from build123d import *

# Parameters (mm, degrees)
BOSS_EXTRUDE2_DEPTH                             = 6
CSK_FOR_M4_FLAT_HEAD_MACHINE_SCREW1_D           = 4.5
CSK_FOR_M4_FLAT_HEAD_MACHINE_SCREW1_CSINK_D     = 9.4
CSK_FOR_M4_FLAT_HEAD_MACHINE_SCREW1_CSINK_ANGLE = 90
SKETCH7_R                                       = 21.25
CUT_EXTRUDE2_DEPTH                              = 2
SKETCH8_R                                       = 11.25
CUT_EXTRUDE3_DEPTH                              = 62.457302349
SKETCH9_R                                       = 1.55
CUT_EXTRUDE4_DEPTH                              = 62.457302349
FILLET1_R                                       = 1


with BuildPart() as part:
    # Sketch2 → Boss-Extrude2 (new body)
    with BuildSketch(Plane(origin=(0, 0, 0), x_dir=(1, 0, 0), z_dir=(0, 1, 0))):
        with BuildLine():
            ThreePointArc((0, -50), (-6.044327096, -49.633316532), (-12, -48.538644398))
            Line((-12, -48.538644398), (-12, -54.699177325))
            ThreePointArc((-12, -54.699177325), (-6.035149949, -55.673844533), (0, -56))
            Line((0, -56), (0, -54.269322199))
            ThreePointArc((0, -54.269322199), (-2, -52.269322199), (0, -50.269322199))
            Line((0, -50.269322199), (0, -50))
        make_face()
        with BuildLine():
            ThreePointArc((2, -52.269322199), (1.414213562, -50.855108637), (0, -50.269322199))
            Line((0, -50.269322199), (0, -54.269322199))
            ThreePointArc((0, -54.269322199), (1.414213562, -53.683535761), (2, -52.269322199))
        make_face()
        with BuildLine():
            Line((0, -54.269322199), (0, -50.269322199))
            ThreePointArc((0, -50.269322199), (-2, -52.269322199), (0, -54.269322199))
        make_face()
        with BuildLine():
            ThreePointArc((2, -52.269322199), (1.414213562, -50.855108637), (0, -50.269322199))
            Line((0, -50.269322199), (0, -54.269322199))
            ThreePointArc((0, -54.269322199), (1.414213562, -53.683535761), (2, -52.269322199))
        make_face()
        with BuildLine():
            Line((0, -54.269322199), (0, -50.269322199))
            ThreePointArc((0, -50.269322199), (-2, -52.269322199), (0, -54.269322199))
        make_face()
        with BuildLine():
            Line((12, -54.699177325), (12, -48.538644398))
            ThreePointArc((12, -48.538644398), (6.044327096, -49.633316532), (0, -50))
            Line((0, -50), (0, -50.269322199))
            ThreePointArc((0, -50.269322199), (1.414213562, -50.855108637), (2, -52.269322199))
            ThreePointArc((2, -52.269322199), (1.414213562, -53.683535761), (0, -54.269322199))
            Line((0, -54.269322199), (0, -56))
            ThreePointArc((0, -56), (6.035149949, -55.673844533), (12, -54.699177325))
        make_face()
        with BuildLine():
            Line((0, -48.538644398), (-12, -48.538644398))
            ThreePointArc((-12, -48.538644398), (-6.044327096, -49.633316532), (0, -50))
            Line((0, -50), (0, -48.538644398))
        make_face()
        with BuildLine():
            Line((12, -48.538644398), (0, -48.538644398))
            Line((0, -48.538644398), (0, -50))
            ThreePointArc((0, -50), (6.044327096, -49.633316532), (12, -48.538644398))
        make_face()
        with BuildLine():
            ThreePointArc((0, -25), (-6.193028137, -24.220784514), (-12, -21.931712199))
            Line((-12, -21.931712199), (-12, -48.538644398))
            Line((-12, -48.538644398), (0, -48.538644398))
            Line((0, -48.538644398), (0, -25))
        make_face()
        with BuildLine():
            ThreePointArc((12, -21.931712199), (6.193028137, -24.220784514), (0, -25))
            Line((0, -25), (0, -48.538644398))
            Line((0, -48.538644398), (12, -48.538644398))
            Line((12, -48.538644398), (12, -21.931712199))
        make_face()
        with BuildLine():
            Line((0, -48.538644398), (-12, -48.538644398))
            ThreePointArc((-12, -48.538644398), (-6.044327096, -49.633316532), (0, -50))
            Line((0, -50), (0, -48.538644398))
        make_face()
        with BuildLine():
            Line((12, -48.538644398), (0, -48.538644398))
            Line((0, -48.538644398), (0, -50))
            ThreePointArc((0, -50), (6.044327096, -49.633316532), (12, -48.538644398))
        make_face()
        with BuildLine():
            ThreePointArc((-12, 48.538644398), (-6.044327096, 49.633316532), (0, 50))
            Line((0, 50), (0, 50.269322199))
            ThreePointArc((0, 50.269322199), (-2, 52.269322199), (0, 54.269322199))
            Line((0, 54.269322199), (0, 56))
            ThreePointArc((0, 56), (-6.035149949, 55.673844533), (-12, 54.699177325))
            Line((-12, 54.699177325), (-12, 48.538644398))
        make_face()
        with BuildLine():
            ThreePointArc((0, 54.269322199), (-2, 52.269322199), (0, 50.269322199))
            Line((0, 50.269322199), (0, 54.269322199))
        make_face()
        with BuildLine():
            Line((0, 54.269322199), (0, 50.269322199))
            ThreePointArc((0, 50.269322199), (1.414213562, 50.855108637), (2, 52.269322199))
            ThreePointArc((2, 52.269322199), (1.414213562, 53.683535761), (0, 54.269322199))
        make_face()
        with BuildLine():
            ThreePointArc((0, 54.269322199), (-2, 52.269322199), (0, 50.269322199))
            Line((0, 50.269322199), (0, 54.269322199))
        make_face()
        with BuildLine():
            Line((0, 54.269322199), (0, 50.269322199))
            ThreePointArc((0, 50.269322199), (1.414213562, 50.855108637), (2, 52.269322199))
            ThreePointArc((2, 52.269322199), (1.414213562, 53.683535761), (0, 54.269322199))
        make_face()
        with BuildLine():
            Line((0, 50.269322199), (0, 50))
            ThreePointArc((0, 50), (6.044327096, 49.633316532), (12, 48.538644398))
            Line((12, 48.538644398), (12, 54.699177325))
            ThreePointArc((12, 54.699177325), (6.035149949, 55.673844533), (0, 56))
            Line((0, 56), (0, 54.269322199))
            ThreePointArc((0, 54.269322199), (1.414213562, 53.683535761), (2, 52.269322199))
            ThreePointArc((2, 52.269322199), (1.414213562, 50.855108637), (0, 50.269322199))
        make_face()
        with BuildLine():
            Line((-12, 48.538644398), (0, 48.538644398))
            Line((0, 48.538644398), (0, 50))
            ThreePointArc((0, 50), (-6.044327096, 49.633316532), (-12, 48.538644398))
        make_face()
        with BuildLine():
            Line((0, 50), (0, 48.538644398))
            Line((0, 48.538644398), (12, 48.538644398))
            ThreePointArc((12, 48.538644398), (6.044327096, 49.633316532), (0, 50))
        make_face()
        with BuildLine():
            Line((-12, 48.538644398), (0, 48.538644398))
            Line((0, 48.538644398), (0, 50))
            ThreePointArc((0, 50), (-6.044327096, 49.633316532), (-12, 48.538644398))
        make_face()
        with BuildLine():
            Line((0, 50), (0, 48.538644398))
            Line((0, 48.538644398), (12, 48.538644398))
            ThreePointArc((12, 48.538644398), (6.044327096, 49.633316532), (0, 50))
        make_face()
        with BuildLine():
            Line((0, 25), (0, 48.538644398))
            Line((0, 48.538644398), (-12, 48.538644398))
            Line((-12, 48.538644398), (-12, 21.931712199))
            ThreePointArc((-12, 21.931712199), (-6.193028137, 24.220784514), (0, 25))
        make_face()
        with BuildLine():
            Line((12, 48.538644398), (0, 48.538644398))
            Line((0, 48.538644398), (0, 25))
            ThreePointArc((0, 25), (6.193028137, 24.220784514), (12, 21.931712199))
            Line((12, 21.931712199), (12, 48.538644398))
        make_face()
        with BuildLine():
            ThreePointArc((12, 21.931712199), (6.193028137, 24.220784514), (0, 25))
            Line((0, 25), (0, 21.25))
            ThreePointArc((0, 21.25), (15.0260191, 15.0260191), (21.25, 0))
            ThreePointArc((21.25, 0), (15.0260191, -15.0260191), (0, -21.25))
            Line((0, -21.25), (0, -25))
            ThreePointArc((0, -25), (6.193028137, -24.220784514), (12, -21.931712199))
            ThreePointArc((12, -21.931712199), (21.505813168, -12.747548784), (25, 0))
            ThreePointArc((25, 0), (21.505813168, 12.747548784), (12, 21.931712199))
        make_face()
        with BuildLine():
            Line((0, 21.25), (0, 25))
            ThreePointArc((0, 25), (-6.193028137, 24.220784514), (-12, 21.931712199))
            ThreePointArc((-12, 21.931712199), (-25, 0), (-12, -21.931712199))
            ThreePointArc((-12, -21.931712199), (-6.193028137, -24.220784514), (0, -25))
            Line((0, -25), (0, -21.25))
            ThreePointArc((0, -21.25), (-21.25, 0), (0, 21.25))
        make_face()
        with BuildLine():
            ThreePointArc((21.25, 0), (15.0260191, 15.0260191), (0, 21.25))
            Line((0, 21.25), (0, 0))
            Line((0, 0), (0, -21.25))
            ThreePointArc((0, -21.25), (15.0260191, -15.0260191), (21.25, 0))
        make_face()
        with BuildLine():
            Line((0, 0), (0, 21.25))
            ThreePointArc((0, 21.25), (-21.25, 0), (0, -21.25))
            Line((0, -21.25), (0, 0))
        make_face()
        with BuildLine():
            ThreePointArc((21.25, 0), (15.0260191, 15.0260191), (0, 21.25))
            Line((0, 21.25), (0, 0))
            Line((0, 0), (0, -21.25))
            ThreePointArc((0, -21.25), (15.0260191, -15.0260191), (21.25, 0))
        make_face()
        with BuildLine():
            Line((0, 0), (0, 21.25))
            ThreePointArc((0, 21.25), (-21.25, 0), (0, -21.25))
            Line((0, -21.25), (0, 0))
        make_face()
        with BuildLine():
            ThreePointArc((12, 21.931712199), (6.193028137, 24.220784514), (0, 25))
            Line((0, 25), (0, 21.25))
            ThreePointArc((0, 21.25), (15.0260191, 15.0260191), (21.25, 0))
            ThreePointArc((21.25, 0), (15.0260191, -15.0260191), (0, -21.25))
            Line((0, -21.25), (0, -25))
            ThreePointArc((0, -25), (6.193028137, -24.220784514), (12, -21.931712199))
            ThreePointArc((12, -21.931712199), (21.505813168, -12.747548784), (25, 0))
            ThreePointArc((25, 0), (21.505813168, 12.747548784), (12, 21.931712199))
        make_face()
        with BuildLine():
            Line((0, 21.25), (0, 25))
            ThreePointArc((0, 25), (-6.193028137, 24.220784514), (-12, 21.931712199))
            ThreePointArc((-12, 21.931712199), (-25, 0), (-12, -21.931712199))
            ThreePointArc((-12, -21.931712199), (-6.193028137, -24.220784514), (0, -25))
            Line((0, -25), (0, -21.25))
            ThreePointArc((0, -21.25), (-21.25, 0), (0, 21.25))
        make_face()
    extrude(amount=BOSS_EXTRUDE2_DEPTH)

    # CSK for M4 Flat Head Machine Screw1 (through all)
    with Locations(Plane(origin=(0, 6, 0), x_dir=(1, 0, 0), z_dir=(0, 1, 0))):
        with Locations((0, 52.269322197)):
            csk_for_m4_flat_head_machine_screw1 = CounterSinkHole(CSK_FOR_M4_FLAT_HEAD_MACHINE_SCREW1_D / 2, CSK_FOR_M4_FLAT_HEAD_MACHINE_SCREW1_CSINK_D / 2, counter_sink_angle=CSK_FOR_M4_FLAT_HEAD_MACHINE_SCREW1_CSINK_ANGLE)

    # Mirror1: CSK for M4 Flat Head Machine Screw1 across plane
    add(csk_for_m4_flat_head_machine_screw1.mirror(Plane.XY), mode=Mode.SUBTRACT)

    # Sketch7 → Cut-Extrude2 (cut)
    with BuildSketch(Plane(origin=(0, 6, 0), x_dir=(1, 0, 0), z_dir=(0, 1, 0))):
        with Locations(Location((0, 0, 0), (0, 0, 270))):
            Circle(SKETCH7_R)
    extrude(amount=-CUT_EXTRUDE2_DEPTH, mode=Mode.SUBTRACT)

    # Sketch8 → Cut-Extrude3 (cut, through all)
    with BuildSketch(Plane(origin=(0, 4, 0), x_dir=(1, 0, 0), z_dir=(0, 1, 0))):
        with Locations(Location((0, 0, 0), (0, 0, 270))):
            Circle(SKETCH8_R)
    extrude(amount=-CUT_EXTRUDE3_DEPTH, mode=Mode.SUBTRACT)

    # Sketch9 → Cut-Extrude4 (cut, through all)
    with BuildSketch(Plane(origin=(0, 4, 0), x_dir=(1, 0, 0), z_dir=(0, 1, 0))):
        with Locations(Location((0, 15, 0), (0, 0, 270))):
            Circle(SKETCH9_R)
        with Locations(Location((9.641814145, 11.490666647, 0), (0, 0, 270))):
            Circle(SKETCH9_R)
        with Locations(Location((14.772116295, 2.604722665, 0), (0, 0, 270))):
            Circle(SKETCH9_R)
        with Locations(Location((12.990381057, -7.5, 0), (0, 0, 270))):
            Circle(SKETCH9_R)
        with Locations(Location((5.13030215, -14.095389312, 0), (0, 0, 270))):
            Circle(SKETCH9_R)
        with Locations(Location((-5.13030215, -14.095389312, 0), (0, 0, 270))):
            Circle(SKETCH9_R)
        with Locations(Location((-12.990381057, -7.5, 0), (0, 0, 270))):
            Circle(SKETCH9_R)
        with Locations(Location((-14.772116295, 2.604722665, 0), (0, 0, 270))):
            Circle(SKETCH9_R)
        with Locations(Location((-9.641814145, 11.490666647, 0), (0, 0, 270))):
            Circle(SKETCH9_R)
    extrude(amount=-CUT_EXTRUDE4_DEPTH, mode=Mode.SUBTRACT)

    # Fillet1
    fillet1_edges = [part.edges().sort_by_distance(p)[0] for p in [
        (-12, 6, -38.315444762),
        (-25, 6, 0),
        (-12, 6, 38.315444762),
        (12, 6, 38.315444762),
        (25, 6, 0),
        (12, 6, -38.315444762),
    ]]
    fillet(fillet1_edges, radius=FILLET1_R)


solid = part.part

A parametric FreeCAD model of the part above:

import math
import FreeCAD as App
import Part
import Sketcher

V = App.Vector
Q = App.Units.Quantity


def edges_at(feature, points):
    """Names of the edges that pass closest to the given points."""
    edges = feature.Shape.Edges
    near = lambda p: min(range(len(edges)), key=lambda i: edges[i].distToShape(Part.Vertex(*p))[0])
    return sorted({f"Edge{near(p) + 1}" for p in points})

doc = App.newDocument("Part")
params = doc.addObject("Spreadsheet::Sheet", "Params")
for row, (alias, value) in enumerate([
    ("sketch1_radius", "25 mm"),
    ("sketch1_radius2", "56 mm"),
    ("pad1_length", "6 mm"),
    ("sketch2_diameter", "4.5 mm"),
    ("hole_diameter", "4.5 mm"),
    ("hole_csink_diameter", "9.4 mm"),
    ("sketch3_diameter", "42.5 mm"),
    ("pocket1_length", "2 mm"),
    ("sketch4_diameter", "22.5 mm"),
    ("sketch5_diameter", "3.1 mm"),
    ("fillet_radius", "1 mm"),
], start=1):
    params.set(f"A{row}", alias)
    params.set(f"B{row}", "=" + value)
    params.setAlias(f"B{row}", alias)

body = doc.addObject("PartDesign::Body", "Body")

# Sketch on XZ plane
sketch1 = body.newObject("Sketcher::SketchObject", "Sketch")
sketch1.AttachmentSupport = (doc.getObject("XZ_Plane"), [""])
sketch1.MapMode = "FlatFace"
sketch1.addGeometry([
    Part.ArcOfCircle(Part.Circle(V(0, 0, 0), V(0, 0, 1), 25), math.radians(119), math.radians(241)),  # 0
    Part.LineSegment(V(-12, 22, 0), V(-12, 55, 0)),  # 1
    Part.ArcOfCircle(Part.Circle(V(0, 0, 0), V(0, 0, 1), 56), math.radians(90), math.radians(102.37)),  # 2
    Part.ArcOfCircle(Part.Circle(V(0, 0, 0), V(0, 0, 1), 56), math.radians(77.63), math.radians(90)),  # 3
    Part.LineSegment(V(12, 55, 0), V(12, 22, 0)),  # 4
    Part.ArcOfCircle(Part.Circle(V(0, 0, 0), V(0, 0, 1), 25), math.radians(0), math.radians(61)),  # 5
    Part.ArcOfCircle(Part.Circle(V(0, 0, 0), V(0, 0, 1), 25), math.radians(-61), math.radians(0)),  # 6
    Part.LineSegment(V(12, -22, 0), V(12, -55, 0)),  # 7
    Part.ArcOfCircle(Part.Circle(V(0, 0, 0), V(0, 0, 1), 56), math.radians(-90), math.radians(-77.63)),  # 8
    Part.ArcOfCircle(Part.Circle(V(0, 0, 0), V(0, 0, 1), 56), math.radians(-102.37), math.radians(-90)),  # 9
    Part.LineSegment(V(-12, -55, 0), V(-12, -22, 0)),  # 10
], False)
sketch1.addConstraint([
    Sketcher.Constraint("Coincident", 0, 1, 1, 1),
    Sketcher.Constraint("Coincident", 1, 2, 2, 2),
    Sketcher.Constraint("Tangent", 2, 1, 3, 2),
    Sketcher.Constraint("Coincident", 3, 1, 4, 1),
    Sketcher.Constraint("Coincident", 4, 2, 5, 2),
    Sketcher.Constraint("Tangent", 5, 1, 6, 2),
    Sketcher.Constraint("Coincident", 6, 1, 7, 1),
    Sketcher.Constraint("Coincident", 7, 2, 8, 2),
    Sketcher.Constraint("Tangent", 8, 1, 9, 2),
    Sketcher.Constraint("Coincident", 9, 1, 10, 1),
    Sketcher.Constraint("Coincident", 10, 2, 0, 2),
    Sketcher.Constraint("Vertical", 1),
    Sketcher.Constraint("Vertical", 4),
    Sketcher.Constraint("Vertical", 7),
    Sketcher.Constraint("Vertical", 10),
    Sketcher.Constraint("Coincident", 0, 3, -1, 1),
    Sketcher.Constraint("Coincident", 2, 3, -1, 1),
    Sketcher.Constraint("Coincident", 5, 3, -1, 1),
    Sketcher.Constraint("Coincident", 8, 3, -1, 1),
    Sketcher.Constraint("Equal", 2, 3),
    Sketcher.Constraint("Equal", 0, 5),
    Sketcher.Constraint("Equal", 5, 6),
    Sketcher.Constraint("Equal", 3, 8),
    Sketcher.Constraint("Equal", 8, 9),
    Sketcher.Constraint("PointOnObject", 2, 1, -2),
    Sketcher.Constraint("PointOnObject", 5, 1, -1),
    Sketcher.Constraint("PointOnObject", 8, 1, -2),
    Sketcher.Constraint("Horizontal", 1, 2, 3, 1),
    Sketcher.Constraint("Horizontal", 7, 2, 9, 1),
    Sketcher.Constraint("Vertical", 4, 2, 6, 1),
    Sketcher.Constraint("Radius", 0, Q("25 mm")),
    Sketcher.Constraint("Radius", 2, Q("56 mm")),
    Sketcher.Constraint("DistanceX", 0, 1, -1, 1, Q("12 mm")),
])
sketch1.setExpression("Constraints[30]", "Params.sketch1_radius")
sketch1.setExpression("Constraints[31]", "Params.sketch1_radius2")
pad1 = body.newObject("PartDesign::Pad", "Pad")
pad1.Profile = sketch1
pad1.setExpression("Length", "Params.pad1_length")
pad1.Reversed = True

# Sketch on XZ plane
sketch2 = body.newObject("Sketcher::SketchObject", "Sketch001")
sketch2.AttachmentSupport = (doc.getObject("XZ_Plane"), [""])
sketch2.MapMode = "FlatFace"
sketch2.AttachmentOffset = App.Placement(V(0, 0, -6), App.Rotation())
sketch2.addGeometry(Part.Circle(V(0, -52.3, 0), V(0, 0, 1), 2.2), False)
sketch2.addConstraint([
    Sketcher.Constraint("PointOnObject", 0, 3, -2),
    Sketcher.Constraint("Diameter", 0, Q("4.5 mm")),
    Sketcher.Constraint("DistanceY", 0, 3, -1, 1, Q("52.269322 mm")),
])
sketch2.setExpression("Constraints[1]", "Params.sketch2_diameter")
doc.recompute()
hole = body.newObject("PartDesign::Hole", "Hole")
hole.Profile = sketch2
hole.ThreadType = "None"
hole.setExpression("Diameter", "Params.hole_diameter")
hole.DepthType = "ThroughAll"
hole.HoleCutType = "Countersink"
hole.setExpression("HoleCutDiameter", "Params.hole_csink_diameter")
hole.HoleCutCountersinkAngle = 90
hole.Reversed = True
doc.recompute()

mirrored = body.newObject("PartDesign::Mirrored", "Mirrored")
mirrored.Originals = [hole]
mirrored.MirrorPlane = (doc.getObject("XY_Plane"), [""])
body.Tip = mirrored

# Sketch on XZ plane
sketch3 = body.newObject("Sketcher::SketchObject", "Sketch002")
sketch3.AttachmentSupport = (doc.getObject("XZ_Plane"), [""])
sketch3.MapMode = "FlatFace"
sketch3.AttachmentOffset = App.Placement(V(0, 0, -6), App.Rotation())
sketch3.addGeometry(Part.Circle(V(0, 0, 0), V(0, 0, 1), 21), False)
sketch3.addConstraint([
    Sketcher.Constraint("Coincident", 0, 3, -1, 1),
    Sketcher.Constraint("Diameter", 0, Q("42.5 mm")),
])
sketch3.setExpression("Constraints[1]", "Params.sketch3_diameter")
pocket1 = body.newObject("PartDesign::Pocket", "Pocket")
pocket1.Profile = sketch3
pocket1.setExpression("Length", "Params.pocket1_length")
pocket1.Reversed = True

# Sketch on XZ plane
sketch4 = body.newObject("Sketcher::SketchObject", "Sketch003")
sketch4.AttachmentSupport = (doc.getObject("XZ_Plane"), [""])
sketch4.MapMode = "FlatFace"
sketch4.AttachmentOffset = App.Placement(V(0, 0, -4), App.Rotation())
sketch4.addGeometry(Part.Circle(V(0, 0, 0), V(0, 0, 1), 11), False)
sketch4.addConstraint([
    Sketcher.Constraint("Coincident", 0, 3, -1, 1),
    Sketcher.Constraint("Diameter", 0, Q("22.5 mm")),
])
sketch4.setExpression("Constraints[1]", "Params.sketch4_diameter")
pocket2 = body.newObject("PartDesign::Pocket", "Pocket001")
pocket2.Profile = sketch4
pocket2.Type = "ThroughAll"
pocket2.Reversed = True

# Sketch on XZ plane
sketch5 = body.newObject("Sketcher::SketchObject", "Sketch004")
sketch5.AttachmentSupport = (doc.getObject("XZ_Plane"), [""])
sketch5.MapMode = "FlatFace"
sketch5.AttachmentOffset = App.Placement(V(0, 0, -4), App.Rotation())
sketch5.addGeometry([
    Part.Circle(V(0, -15, 0), V(0, 0, 1), 1.6),  # 0
    Part.Circle(V(9.6, -11.5, 0), V(0, 0, 1), 1.6),  # 1
    Part.Circle(V(14.8, -2.6, 0), V(0, 0, 1), 1.6),  # 2
    Part.Circle(V(13, 7.5, 0), V(0, 0, 1), 1.6),  # 3
    Part.Circle(V(5.1, 14.1, 0), V(0, 0, 1), 1.6),  # 4
    Part.Circle(V(-5.1, 14.1, 0), V(0, 0, 1), 1.6),  # 5
    Part.Circle(V(-13, 7.5, 0), V(0, 0, 1), 1.6),  # 6
    Part.Circle(V(-14.8, -2.6, 0), V(0, 0, 1), 1.6),  # 7
    Part.Circle(V(-9.6, -11.5, 0), V(0, 0, 1), 1.6),  # 8
], False)
sketch5.addConstraint([
    Sketcher.Constraint("Equal", 0, 1),
    Sketcher.Constraint("Equal", 1, 2),
    Sketcher.Constraint("Equal", 2, 3),
    Sketcher.Constraint("Equal", 3, 4),
    Sketcher.Constraint("Equal", 4, 5),
    Sketcher.Constraint("Equal", 5, 6),
    Sketcher.Constraint("Equal", 6, 7),
    Sketcher.Constraint("Equal", 7, 8),
    Sketcher.Constraint("Symmetric", 4, 3, 5, 3, -2),
    Sketcher.Constraint("Symmetric", 3, 3, 6, 3, -2),
    Sketcher.Constraint("Symmetric", 2, 3, 7, 3, -2),
    Sketcher.Constraint("Symmetric", 1, 3, 8, 3, -2),
    Sketcher.Constraint("PointOnObject", 0, 3, -2),
    Sketcher.Constraint("Diameter", 0, Q("3.1 mm")),
    Sketcher.Constraint("DistanceY", 0, 3, -1, 1, Q("15 mm")),
    Sketcher.Constraint("DistanceY", -1, 1, 3, 3, Q("7.5 mm")),
    Sketcher.Constraint("DistanceX", -1, 1, 3, 3, Q("12.990381 mm")),
    Sketcher.Constraint("DistanceY", -1, 1, 4, 3, Q("14.095389 mm")),
    Sketcher.Constraint("DistanceX", 4, 3, 3, 3, Q("7.860079 mm")),
    Sketcher.Constraint("DistanceY", 2, 3, 4, 3, Q("16.700112 mm")),
    Sketcher.Constraint("DistanceX", 4, 3, 1, 3, Q("4.511512 mm")),
    Sketcher.Constraint("DistanceX", 5, 3, 2, 3, Q("19.902418 mm")),
    Sketcher.Constraint("DistanceY", 1, 3, -1, 1, Q("11.490667 mm")),
])
sketch5.setExpression("Constraints[13]", "Params.sketch5_diameter")
pocket3 = body.newObject("PartDesign::Pocket", "Pocket002")
pocket3.Profile = sketch5
pocket3.Type = "ThroughAll"
pocket3.Reversed = True
doc.recompute()

fillet = body.newObject("PartDesign::Fillet", "Fillet")
fillet.Base = (pocket3, edges_at(pocket3, [
    (-12, 6, -38.315),
    (-25, 6, 0),
    (-12, 6, 38.315),
    (12, 6, 38.315),
    (21.506, 6, -12.748),
    (12, 6, -38.315),
]))
fillet.setExpression("Radius", "Params.fillet_radius")

doc.recompute()
